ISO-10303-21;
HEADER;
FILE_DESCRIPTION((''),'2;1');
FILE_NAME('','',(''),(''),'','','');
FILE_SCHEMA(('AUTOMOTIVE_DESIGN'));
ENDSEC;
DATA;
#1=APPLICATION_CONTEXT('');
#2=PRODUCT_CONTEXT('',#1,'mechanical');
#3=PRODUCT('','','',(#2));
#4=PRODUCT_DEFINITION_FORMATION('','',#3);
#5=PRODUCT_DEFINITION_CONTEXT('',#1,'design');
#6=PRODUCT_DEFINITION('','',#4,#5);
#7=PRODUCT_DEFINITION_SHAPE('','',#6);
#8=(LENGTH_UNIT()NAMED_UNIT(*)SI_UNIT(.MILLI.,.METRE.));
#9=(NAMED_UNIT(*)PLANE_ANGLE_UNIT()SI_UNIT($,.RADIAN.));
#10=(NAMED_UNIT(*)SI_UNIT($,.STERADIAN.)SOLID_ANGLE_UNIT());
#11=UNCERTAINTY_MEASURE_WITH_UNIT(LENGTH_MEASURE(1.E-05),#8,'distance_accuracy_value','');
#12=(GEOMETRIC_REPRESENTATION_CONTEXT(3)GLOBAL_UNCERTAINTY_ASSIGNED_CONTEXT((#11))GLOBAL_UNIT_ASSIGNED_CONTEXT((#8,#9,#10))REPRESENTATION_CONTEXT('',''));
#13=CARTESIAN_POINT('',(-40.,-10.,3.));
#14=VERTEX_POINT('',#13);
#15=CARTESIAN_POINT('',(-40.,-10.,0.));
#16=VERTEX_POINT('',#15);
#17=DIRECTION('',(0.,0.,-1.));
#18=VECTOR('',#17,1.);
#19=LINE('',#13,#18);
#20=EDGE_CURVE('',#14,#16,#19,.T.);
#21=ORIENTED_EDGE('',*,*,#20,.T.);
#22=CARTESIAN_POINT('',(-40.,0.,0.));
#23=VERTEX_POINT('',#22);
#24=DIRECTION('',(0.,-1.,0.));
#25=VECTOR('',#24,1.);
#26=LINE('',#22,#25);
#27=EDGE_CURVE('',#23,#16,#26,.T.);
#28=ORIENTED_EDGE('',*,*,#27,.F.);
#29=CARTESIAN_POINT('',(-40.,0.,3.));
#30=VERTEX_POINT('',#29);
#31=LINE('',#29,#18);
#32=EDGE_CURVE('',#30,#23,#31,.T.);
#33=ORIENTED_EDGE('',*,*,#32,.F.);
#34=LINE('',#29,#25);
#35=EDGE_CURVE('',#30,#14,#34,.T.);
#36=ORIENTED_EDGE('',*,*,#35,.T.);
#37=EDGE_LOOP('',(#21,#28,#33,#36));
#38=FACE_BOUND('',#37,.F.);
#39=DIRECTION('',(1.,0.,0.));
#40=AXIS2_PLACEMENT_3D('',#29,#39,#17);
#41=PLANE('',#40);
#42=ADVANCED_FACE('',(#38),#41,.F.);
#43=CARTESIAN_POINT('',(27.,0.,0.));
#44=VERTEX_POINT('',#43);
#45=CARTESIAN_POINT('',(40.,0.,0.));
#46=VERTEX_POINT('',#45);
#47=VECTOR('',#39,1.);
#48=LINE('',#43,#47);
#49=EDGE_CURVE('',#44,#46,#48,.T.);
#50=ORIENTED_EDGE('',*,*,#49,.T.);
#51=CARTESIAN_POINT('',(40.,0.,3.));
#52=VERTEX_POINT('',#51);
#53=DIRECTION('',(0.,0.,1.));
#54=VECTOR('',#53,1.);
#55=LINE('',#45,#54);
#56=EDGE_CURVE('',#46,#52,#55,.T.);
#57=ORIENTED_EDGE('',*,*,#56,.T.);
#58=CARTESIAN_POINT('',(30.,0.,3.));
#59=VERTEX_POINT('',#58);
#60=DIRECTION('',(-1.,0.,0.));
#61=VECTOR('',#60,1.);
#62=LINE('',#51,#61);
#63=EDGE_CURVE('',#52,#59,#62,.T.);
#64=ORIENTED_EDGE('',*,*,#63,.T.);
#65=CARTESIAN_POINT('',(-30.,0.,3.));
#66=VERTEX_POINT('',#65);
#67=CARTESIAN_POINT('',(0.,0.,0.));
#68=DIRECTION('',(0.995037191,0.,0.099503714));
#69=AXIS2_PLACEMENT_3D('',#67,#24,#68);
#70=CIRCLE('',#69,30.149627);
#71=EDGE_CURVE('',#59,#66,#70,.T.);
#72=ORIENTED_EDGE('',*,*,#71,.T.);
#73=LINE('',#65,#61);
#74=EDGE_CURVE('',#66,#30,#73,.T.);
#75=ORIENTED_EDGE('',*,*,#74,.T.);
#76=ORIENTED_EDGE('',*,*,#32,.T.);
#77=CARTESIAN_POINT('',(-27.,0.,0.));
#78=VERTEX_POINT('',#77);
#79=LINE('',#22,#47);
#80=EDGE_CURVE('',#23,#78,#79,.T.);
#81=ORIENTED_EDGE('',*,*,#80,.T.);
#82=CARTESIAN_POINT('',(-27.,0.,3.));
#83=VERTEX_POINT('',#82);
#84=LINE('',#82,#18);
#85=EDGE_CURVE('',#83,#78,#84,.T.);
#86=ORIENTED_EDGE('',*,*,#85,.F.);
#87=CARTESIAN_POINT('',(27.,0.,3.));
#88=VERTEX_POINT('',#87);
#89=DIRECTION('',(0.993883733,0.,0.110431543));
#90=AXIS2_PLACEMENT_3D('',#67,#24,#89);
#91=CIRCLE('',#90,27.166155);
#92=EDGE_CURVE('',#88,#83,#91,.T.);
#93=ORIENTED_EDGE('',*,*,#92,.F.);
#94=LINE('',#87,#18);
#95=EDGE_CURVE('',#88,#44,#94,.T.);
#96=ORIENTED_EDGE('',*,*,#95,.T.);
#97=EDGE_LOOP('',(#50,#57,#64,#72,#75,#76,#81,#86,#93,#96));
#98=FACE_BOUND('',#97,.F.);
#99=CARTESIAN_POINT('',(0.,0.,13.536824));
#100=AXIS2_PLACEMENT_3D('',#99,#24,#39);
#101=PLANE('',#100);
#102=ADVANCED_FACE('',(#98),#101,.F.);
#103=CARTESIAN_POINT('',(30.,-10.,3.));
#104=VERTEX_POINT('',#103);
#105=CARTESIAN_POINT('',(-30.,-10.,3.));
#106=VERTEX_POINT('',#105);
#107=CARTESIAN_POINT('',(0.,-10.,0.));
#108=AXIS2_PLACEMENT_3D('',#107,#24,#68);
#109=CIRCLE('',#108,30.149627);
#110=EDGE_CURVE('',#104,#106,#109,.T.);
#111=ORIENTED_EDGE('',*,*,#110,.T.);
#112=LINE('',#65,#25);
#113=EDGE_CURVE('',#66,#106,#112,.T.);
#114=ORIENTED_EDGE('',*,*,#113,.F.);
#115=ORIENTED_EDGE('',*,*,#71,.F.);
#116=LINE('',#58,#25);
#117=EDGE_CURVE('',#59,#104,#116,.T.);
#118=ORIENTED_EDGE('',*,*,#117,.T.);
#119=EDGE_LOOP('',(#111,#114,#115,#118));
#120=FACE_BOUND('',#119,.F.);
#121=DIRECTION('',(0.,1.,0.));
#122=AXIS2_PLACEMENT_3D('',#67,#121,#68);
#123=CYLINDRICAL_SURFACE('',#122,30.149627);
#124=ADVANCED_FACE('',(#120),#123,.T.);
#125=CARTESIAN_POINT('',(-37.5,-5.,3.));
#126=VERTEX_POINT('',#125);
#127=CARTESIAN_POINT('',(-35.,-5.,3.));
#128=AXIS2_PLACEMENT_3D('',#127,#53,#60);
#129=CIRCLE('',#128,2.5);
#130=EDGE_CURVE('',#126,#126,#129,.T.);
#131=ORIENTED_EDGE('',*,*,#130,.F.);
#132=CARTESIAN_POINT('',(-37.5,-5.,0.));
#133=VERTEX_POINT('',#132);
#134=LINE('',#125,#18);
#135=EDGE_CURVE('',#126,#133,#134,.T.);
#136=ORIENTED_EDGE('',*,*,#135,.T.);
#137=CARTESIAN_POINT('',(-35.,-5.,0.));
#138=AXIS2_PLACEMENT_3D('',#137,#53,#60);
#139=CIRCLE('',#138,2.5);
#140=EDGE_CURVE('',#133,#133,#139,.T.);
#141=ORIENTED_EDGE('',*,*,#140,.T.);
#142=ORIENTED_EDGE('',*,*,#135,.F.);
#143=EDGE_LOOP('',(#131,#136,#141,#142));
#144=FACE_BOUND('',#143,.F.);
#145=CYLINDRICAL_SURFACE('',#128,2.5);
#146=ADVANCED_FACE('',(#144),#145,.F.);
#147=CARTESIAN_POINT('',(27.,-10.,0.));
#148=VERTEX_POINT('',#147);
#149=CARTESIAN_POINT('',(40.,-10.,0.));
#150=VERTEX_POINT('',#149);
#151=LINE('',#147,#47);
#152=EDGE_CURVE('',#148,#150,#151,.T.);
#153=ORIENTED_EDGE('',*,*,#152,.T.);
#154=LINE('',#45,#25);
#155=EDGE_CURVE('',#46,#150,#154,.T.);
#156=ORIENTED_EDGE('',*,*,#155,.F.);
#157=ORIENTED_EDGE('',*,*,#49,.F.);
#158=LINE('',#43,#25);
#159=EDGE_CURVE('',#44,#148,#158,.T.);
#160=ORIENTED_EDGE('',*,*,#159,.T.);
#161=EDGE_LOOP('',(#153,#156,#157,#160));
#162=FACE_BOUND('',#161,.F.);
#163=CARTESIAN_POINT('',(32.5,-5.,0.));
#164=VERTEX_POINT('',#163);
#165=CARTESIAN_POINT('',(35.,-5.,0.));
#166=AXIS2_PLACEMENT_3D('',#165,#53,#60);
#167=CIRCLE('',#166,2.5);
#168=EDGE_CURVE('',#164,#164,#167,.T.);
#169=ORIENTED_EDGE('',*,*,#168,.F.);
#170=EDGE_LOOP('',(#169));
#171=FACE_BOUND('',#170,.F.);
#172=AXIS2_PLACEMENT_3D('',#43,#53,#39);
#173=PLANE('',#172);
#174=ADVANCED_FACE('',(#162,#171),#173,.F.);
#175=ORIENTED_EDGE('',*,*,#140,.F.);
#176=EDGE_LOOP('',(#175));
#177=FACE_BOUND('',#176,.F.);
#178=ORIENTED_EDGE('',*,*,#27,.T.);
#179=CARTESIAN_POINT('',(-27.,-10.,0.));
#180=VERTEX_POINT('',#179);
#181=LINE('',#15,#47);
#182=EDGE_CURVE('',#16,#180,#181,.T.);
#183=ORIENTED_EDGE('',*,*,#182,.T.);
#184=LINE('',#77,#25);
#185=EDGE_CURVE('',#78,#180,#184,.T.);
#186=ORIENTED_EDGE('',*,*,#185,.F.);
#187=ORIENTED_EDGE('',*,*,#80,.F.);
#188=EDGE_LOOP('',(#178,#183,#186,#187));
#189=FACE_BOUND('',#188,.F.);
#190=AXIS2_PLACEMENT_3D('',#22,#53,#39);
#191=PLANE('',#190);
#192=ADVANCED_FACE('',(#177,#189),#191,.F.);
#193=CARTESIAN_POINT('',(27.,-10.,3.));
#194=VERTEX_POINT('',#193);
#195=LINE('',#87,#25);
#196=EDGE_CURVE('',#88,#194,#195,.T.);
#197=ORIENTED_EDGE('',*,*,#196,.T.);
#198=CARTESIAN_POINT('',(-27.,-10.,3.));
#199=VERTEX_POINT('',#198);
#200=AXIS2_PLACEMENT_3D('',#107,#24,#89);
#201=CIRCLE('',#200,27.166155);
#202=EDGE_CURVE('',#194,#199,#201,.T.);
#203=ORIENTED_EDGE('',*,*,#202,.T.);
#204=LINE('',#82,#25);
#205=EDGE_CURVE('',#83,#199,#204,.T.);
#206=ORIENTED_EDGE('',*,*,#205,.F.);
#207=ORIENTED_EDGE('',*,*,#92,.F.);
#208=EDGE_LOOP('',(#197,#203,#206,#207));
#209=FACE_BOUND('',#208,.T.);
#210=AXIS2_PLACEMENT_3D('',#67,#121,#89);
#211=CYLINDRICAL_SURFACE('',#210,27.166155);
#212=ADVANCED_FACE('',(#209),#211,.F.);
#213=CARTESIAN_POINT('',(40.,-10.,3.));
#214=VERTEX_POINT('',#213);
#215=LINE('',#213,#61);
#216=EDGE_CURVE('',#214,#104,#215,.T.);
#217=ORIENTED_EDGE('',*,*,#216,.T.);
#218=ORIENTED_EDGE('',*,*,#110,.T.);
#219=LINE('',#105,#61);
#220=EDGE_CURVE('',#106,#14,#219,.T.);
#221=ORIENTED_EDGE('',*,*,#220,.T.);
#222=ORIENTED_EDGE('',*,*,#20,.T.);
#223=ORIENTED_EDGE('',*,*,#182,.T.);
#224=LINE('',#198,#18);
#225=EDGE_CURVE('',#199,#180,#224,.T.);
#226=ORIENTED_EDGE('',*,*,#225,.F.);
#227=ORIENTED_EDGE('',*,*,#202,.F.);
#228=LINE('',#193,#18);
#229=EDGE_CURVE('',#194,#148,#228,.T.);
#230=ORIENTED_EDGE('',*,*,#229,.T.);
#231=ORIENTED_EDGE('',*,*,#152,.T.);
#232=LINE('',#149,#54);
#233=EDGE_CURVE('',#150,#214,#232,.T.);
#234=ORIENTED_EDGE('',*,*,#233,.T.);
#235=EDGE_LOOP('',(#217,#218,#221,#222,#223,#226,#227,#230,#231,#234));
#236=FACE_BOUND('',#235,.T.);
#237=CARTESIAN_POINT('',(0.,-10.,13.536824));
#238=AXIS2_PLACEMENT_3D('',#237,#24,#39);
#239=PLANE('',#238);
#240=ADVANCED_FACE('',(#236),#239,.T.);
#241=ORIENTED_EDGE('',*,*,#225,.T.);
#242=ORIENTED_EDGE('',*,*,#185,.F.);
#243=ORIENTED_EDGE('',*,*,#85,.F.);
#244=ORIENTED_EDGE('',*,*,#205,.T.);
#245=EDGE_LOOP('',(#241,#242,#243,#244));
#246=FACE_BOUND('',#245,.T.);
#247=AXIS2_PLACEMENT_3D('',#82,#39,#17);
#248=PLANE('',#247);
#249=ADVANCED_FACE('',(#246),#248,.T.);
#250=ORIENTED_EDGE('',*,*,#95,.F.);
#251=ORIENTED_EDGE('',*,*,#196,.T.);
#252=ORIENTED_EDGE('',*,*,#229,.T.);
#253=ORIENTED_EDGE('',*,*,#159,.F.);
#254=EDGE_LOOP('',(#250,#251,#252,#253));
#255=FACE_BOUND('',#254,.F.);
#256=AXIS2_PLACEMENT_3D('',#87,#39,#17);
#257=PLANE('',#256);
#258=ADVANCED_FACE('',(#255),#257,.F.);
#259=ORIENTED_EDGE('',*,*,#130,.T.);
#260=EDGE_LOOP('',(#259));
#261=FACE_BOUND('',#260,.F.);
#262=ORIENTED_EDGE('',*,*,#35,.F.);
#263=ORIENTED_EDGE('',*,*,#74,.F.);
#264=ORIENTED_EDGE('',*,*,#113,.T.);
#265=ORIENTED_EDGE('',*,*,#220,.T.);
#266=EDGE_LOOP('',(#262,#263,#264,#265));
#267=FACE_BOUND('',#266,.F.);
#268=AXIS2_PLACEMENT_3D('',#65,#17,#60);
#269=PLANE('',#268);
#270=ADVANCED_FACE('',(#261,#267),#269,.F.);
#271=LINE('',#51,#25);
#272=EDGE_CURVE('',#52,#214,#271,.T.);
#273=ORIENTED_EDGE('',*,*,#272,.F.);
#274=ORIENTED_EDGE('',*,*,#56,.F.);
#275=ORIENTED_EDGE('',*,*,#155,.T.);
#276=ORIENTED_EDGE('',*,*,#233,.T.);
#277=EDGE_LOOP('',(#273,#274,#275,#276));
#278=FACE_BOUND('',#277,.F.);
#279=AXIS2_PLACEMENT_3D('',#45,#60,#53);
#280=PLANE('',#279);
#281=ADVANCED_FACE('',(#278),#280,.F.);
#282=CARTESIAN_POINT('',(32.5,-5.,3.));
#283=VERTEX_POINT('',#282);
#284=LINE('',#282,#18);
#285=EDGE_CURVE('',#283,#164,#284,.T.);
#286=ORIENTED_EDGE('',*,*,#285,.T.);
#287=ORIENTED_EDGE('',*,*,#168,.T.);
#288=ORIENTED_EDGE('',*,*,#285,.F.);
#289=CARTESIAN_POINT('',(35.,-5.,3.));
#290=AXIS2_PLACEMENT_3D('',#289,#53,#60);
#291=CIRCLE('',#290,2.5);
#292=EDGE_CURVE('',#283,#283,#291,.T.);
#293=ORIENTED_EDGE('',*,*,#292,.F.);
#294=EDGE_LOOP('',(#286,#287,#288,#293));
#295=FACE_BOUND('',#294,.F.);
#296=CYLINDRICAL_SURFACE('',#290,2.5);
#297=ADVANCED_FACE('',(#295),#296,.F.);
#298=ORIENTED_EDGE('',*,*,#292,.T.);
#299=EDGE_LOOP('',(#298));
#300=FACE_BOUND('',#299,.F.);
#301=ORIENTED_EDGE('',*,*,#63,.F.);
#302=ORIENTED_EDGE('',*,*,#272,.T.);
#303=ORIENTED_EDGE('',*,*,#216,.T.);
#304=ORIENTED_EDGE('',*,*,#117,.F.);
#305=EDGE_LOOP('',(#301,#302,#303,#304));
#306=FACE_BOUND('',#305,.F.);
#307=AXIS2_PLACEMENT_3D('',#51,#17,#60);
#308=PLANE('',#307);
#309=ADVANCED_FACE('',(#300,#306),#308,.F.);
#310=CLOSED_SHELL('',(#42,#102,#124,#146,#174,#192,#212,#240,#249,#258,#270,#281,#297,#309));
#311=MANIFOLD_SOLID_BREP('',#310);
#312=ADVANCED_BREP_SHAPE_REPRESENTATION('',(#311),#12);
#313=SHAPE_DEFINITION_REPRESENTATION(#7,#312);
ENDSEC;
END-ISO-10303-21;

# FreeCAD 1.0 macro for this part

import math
import FreeCAD as App
import Part
import Sketcher

V = App.Vector

doc = App.newDocument("Part")
body = doc.addObject("PartDesign::Body", "Body")

sketch1 = doc.addObject("Sketcher::SketchObject", "Sketch")
body.addObject(sketch1)
sketch1.AttachmentSupport = (doc.XZ_Plane, [""])
sketch1.MapMode = "FlatFace"
sketch1.addGeometry(Part.ArcOfCircle(Part.Circle(V(0, 0, 0), V(0, 0, 1), 30.1), math.radians(6), math.radians(174)), False)
sketch1.addGeometry(Part.LineSegment(V(-30, 3, 0), V(-40, 3, 0)), False)
sketch1.addGeometry(Part.LineSegment(V(-40, 3, 0), V(-40, 0, 0)), False)
sketch1.addGeometry(Part.LineSegment(V(-40, 0, 0), V(-27, 0, 0)), False)
sketch1.addGeometry(Part.LineSegment(V(-27, 0, 0), V(-27, 3, 0)), False)
sketch1.addGeometry(Part.ArcOfCircle(Part.Circle(V(0, 0, 0), V(0, 0, 1), 27.2), math.radians(6), math.radians(174)), False)
sketch1.addGeometry(Part.LineSegment(V(27, 3, 0), V(27, 0, 0)), False)
sketch1.addGeometry(Part.LineSegment(V(27, 0, 0), V(40, 0, 0)), False)
sketch1.addGeometry(Part.LineSegment(V(40, 0, 0), V(40, 3, 0)), False)
sketch1.addGeometry(Part.LineSegment(V(40, 3, 0), V(30, 3, 0)), False)
sketch1.addConstraint(Sketcher.Constraint("Coincident", 0, 2, 1, 1))
sketch1.addConstraint(Sketcher.Constraint("Coincident", 1, 2, 2, 1))
sketch1.addConstraint(Sketcher.Constraint("Coincident", 2, 2, 3, 1))
sketch1.addConstraint(Sketcher.Constraint("Coincident", 3, 2, 4, 1))
sketch1.addConstraint(Sketcher.Constraint("Coincident", 4, 2, 5, 2))
sketch1.addConstraint(Sketcher.Constraint("Coincident", 5, 1, 6, 1))
sketch1.addConstraint(Sketcher.Constraint("Coincident", 6, 2, 7, 1))
sketch1.addConstraint(Sketcher.Constraint("Coincident", 7, 2, 8, 1))
sketch1.addConstraint(Sketcher.Constraint("Coincident", 8, 2, 9, 1))
sketch1.addConstraint(Sketcher.Constraint("Coincident", 9, 2, 0, 1))
sketch1.addConstraint(Sketcher.Constraint("Horizontal", 1))
sketch1.addConstraint(Sketcher.Constraint("Vertical", 2))
sketch1.addConstraint(Sketcher.Constraint("Horizontal", 3))
sketch1.addConstraint(Sketcher.Constraint("Vertical", 4))
sketch1.addConstraint(Sketcher.Constraint("Vertical", 6))
sketch1.addConstraint(Sketcher.Constraint("Horizontal", 7))
sketch1.addConstraint(Sketcher.Constraint("Vertical", 8))
sketch1.addConstraint(Sketcher.Constraint("Horizontal", 9))
sketch1.addConstraint(Sketcher.Constraint("Coincident", 0, 3, -1, 1))
sketch1.addConstraint(Sketcher.Constraint("Coincident", 5, 3, -1, 1))
sketch1.addConstraint(Sketcher.Constraint("Symmetric", 3, 2, 6, 2, -1, 1))
sketch1.addConstraint(Sketcher.Constraint("Symmetric", 2, 2, 7, 2, -2))
sketch1.addConstraint(Sketcher.Constraint("Horizontal", 1, 2, 4, 2))
sketch1.addConstraint(Sketcher.Constraint("Horizontal", 5, 1, 8, 2))
sketch1.addConstraint(Sketcher.Constraint("DistanceX", 1, 2, 1, 1, 10.0))
sketch1.addConstraint(Sketcher.Constraint("DistanceX", 3, 1, 3, 2, 13.0))
sketch1.addConstraint(Sketcher.Constraint("DistanceY", 2, 2, 2, 1, 3.0))
sketch1.addConstraint(Sketcher.Constraint("DistanceX", 0, 2, -1, 1, 30.0))
pad1 = doc.addObject("PartDesign::Pad", "Pad")
body.addObject(pad1)
pad1.Profile = sketch1
pad1.Length = 10

sketch2 = doc.addObject("Sketcher::SketchObject", "Sketch001")
body.addObject(sketch2)
sketch2.AttachmentSupport = (doc.XY_Plane, [""])
sketch2.MapMode = "FlatFace"
sketch2.AttachmentOffset = App.Placement(V(0, 0, 3), App.Rotation())
sketch2.addGeometry(Part.Circle(V(35, -5, 0), V(0, 0, 1), 2.5), False)
sketch2.addGeometry(Part.Circle(V(-35, -5, 0), V(0, 0, 1), 2.5), False)
sketch2.addConstraint(Sketcher.Constraint("Equal", 0, 1))
sketch2.addConstraint(Sketcher.Constraint("Symmetric", 0, 3, 1, 3, -2))
sketch2.addConstraint(Sketcher.Constraint("Diameter", 0, 5.0))
sketch2.addConstraint(Sketcher.Constraint("DistanceX", -1, 1, 0, 3, 35.0))
sketch2.addConstraint(Sketcher.Constraint("DistanceY", 0, 3, -1, 1, 5.0))
pocket1 = doc.addObject("PartDesign::Pocket", "Pocket")
body.addObject(pocket1)
pocket1.Profile = sketch2
pocket1.Length = 3

doc.recompute()
